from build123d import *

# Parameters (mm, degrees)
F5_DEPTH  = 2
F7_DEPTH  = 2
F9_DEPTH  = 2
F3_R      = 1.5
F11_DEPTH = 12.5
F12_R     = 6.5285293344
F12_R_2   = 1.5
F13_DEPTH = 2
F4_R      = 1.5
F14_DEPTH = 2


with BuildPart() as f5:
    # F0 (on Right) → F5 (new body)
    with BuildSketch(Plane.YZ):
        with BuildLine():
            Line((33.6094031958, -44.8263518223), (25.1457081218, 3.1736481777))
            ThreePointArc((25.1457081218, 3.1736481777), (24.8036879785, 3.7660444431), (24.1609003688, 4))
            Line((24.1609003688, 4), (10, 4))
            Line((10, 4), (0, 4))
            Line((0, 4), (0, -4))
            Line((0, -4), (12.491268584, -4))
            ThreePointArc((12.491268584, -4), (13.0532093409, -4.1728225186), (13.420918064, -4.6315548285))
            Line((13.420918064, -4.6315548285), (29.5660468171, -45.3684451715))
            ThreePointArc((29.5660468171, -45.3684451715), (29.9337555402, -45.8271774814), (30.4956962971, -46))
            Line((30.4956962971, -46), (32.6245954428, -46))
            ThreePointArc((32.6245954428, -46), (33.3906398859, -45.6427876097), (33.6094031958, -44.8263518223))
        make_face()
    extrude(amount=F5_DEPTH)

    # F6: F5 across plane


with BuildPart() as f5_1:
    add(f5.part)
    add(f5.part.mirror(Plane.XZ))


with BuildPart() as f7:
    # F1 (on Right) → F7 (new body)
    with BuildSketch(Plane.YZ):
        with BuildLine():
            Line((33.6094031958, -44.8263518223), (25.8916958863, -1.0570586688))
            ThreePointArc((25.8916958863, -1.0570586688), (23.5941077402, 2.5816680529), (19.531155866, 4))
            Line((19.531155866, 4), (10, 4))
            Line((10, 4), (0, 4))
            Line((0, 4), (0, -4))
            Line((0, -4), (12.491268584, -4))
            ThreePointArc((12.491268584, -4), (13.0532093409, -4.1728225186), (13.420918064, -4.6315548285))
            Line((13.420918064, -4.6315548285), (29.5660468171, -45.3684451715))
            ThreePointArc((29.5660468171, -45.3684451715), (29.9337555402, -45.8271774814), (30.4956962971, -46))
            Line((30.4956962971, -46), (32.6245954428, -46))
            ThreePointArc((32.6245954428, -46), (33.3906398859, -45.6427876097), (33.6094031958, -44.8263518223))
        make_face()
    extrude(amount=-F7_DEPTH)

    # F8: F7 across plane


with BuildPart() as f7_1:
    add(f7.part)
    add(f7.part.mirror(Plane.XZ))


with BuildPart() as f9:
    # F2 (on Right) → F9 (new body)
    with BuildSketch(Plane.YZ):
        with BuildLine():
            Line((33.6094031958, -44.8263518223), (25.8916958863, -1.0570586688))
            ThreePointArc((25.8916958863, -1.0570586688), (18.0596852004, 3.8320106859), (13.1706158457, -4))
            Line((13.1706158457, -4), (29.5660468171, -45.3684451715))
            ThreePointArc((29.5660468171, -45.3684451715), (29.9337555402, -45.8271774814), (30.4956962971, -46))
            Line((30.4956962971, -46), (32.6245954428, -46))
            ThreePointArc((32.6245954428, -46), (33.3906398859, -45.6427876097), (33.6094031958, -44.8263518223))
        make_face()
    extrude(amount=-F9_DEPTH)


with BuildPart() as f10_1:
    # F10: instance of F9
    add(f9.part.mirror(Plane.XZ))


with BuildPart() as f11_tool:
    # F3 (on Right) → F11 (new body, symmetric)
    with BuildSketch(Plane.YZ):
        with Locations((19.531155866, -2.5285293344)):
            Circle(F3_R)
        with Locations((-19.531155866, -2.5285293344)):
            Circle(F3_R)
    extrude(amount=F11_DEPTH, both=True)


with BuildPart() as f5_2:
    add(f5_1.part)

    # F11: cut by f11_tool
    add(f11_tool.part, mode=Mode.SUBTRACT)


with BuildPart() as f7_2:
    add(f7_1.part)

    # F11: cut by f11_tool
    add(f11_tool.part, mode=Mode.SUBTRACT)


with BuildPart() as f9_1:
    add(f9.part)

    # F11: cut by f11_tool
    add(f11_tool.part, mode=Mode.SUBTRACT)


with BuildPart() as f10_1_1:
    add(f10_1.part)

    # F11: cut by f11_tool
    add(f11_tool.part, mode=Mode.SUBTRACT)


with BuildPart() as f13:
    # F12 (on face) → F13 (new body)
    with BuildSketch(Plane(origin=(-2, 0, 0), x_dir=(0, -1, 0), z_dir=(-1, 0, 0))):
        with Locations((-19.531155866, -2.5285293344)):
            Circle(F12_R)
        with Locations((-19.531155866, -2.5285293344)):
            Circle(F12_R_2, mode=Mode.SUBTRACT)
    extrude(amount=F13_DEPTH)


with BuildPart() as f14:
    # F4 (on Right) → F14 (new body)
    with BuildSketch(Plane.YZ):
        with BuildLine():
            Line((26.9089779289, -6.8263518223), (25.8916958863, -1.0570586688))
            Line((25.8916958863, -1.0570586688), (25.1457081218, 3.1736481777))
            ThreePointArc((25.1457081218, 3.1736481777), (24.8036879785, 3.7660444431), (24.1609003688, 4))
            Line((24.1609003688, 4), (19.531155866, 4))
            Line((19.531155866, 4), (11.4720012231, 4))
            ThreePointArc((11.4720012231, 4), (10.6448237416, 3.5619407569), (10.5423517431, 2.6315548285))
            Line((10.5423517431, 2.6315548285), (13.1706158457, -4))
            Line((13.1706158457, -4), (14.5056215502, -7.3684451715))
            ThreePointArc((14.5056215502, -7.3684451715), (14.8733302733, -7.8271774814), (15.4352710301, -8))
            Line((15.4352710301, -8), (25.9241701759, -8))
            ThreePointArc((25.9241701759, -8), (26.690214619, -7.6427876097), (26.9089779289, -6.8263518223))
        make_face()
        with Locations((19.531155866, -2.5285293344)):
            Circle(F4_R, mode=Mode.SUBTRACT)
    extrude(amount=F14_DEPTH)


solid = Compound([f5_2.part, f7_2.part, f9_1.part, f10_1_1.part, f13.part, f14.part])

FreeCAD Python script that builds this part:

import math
import FreeCAD as App
import Part
import Sketcher
from FreeCAD import Vector
Q = App.Units.Quantity

doc = App.newDocument("Part")
body = doc.addObject("PartDesign::Body", "Body")

# Sketch on YZ plane
sketch1 = doc.addObject("Sketcher::SketchObject", "Sketch")
body.addObject(sketch1)
sketch1.AttachmentSupport = (doc.YZ_Plane, [""])
sketch1.MapMode = "FlatFace"
sketch1.addGeometry([
    Part.LineSegment(Vector(33.6, -44.8, 0), Vector(25.1, 3.2, 0)),  # 0
    Part.ArcOfCircle(Part.Circle(Vector(24.2, 3, 0), Vector(0, 0, 1), 1), math.radians(10), math.radians(90)),  # 1
    Part.LineSegment(Vector(24.2, 4, 0), Vector(0, 4, 0)),  # 2
    Part.LineSegment(Vector(0, 4, 0), Vector(0, -4, 0)),  # 3
    Part.LineSegment(Vector(0, -4, 0), Vector(12.5, -4, 0)),  # 4
    Part.ArcOfCircle(Part.Circle(Vector(12.5, -5, 0), Vector(0, 0, 1), 1), math.radians(22), math.radians(90)),  # 5
    Part.LineSegment(Vector(13.4, -4.6, 0), Vector(29.6, -45.4, 0)),  # 6
    Part.ArcOfCircle(Part.Circle(Vector(30.5, -45, 0), Vector(0, 0, 1), 1), math.radians(-158), math.radians(-90)),  # 7
    Part.LineSegment(Vector(30.5, -46, 0), Vector(32.6, -46, 0)),  # 8
    Part.ArcOfCircle(Part.Circle(Vector(32.6, -45, 0), Vector(0, 0, 1), 1), math.radians(-90), math.radians(10)),  # 9
], False)
sketch1.addConstraint([
    Sketcher.Constraint("Tangent", 0, 2, 1, 1),
    Sketcher.Constraint("Tangent", 1, 2, 2, 1),
    Sketcher.Constraint("Coincident", 2, 2, 3, 1),
    Sketcher.Constraint("Coincident", 3, 2, 4, 1),
    Sketcher.Constraint("Tangent", 4, 2, 5, 2),
    Sketcher.Constraint("Tangent", 5, 1, 6, 1),
    Sketcher.Constraint("Tangent", 6, 2, 7, 1),
    Sketcher.Constraint("Tangent", 7, 2, 8, 1),
    Sketcher.Constraint("Tangent", 8, 2, 9, 1),
    Sketcher.Constraint("Tangent", 9, 2, 0, 1),
    Sketcher.Constraint("Horizontal", 2),
    Sketcher.Constraint("Vertical", 3),
    Sketcher.Constraint("Horizontal", 4),
    Sketcher.Constraint("Horizontal", 8),
    Sketcher.Constraint("Equal", 1, 5),
    Sketcher.Constraint("Equal", 5, 7),
    Sketcher.Constraint("Equal", 7, 9),
    Sketcher.Constraint("Symmetric", 2, 2, 3, 2, -1, 1),
    Sketcher.Constraint("Radius", 1, 1.0),
    Sketcher.Constraint("DistanceY", 3, 2, 3, 1, 8.0),
    Sketcher.Constraint("Angle", 0, Q("100 deg")),
    Sketcher.Constraint("DistanceY", 7, 3, -1, 1, 45.0),
    Sketcher.Constraint("DistanceX", 2, 2, 2, 1, 24.1609),
    Sketcher.Constraint("DistanceX", 8, 1, 8, 2, 2.128899),
    Sketcher.Constraint("DistanceX", 4, 1, 4, 2, 12.491269),
])
pad1 = doc.addObject("PartDesign::Pad", "Pad")
body.addObject(pad1)
pad1.Profile = sketch1
pad1.Length = 2
body2 = doc.addObject("PartDesign::Body", "Body001")
doc.recompute()

body2.BaseFeature = body
doc.recompute()

mirroring = doc.addObject("Part::Mirroring", "Mirroring")
mirroring.Source = body
mirroring.Base = Vector(0, 0, 0)
mirroring.Normal = Vector(0, -1, 0)
body3 = doc.addObject("PartDesign::Body", "Body002")
body3.BaseFeature = mirroring
boolean = doc.addObject("PartDesign::Boolean", "Boolean")
body2.addObject(boolean)
boolean.Type = "Fuse"
boolean.addObjects([body3])
doc.recompute()
body4 = doc.addObject("PartDesign::Body", "Body003")

# Sketch on YZ plane
sketch2 = doc.addObject("Sketcher::SketchObject", "Sketch001")
body4.addObject(sketch2)
sketch2.AttachmentSupport = (doc.getObject("YZ_Plane003"), [""])
sketch2.MapMode = "FlatFace"
sketch2.addGeometry([
    Part.LineSegment(Vector(33.6, -44.8, 0), Vector(25.9, -1.1, 0)),  # 0
    Part.ArcOfCircle(Part.Circle(Vector(19.5, -2.5, 0), Vector(0, 0, 1), 6.5), math.radians(13), math.radians(90)),  # 1
    Part.LineSegment(Vector(19.5, 4, 0), Vector(0, 4, 0)),  # 2
    Part.LineSegment(Vector(0, 4, 0), Vector(0, -4, 0)),  # 3
    Part.LineSegment(Vector(0, -4, 0), Vector(12.5, -4, 0)),  # 4
    Part.ArcOfCircle(Part.Circle(Vector(12.5, -5, 0), Vector(0, 0, 1), 1), math.radians(22), math.radians(90)),  # 5
    Part.LineSegment(Vector(13.4, -4.6, 0), Vector(29.6, -45.4, 0)),  # 6
    Part.ArcOfCircle(Part.Circle(Vector(30.5, -45, 0), Vector(0, 0, 1), 1), math.radians(-158), math.radians(-90)),  # 7
    Part.LineSegment(Vector(30.5, -46, 0), Vector(32.6, -46, 0)),  # 8
    Part.ArcOfCircle(Part.Circle(Vector(32.6, -45, 0), Vector(0, 0, 1), 1), math.radians(-90), math.radians(10)),  # 9
], False)
sketch2.addConstraint([
    Sketcher.Constraint("Coincident", 0, 2, 1, 1),
    Sketcher.Constraint("Tangent", 1, 2, 2, 1),
    Sketcher.Constraint("Coincident", 2, 2, 3, 1),
    Sketcher.Constraint("Coincident", 3, 2, 4, 1),
    Sketcher.Constraint("Tangent", 4, 2, 5, 2),
    Sketcher.Constraint("Tangent", 5, 1, 6, 1),
    Sketcher.Constraint("Tangent", 6, 2, 7, 1),
    Sketcher.Constraint("Tangent", 7, 2, 8, 1),
    Sketcher.Constraint("Tangent", 8, 2, 9, 1),
    Sketcher.Constraint("Tangent", 9, 2, 0, 1),
    Sketcher.Constraint("Horizontal", 2),
    Sketcher.Constraint("Vertical", 3),
    Sketcher.Constraint("Horizontal", 4),
    Sketcher.Constraint("Horizontal", 8),
    Sketcher.Constraint("Equal", 5, 7),
    Sketcher.Constraint("Equal", 7, 9),
    Sketcher.Constraint("Symmetric", 2, 2, 3, 2, -1, 1),
    Sketcher.Constraint("Radius", 5, 1.0),
    Sketcher.Constraint("DistanceY", 3, 2, 3, 1, 8.0),
    Sketcher.Constraint("Angle", 0, Q("100 deg")),
    Sketcher.Constraint("DistanceY", 7, 3, -1, 1, 45.0),
    Sketcher.Constraint("Radius", 1, 6.528529),
    Sketcher.Constraint("DistanceX", 8, 1, 8, 2, 2.128899),
    Sketcher.Constraint("DistanceX", 0, 2, 7, 3, 4.604),
    Sketcher.Constraint("DistanceX", 4, 1, 4, 2, 12.491269),
    Sketcher.Constraint("DistanceX", 2, 2, 2, 1, 19.531156),
])
pad2 = doc.addObject("PartDesign::Pad", "Pad001")
body4.addObject(pad2)
pad2.Profile = sketch2
pad2.Length = 2
pad2.Reversed = True
body5 = doc.addObject("PartDesign::Body", "Body004")
doc.recompute()

body5.BaseFeature = body4
doc.recompute()

mirroring2 = doc.addObject("Part::Mirroring", "Mirroring001")
mirroring2.Source = body4
mirroring2.Base = Vector(0, 0, 0)
mirroring2.Normal = Vector(0, -1, 0)
body6 = doc.addObject("PartDesign::Body", "Body005")
body6.BaseFeature = mirroring2
boolean2 = doc.addObject("PartDesign::Boolean", "Boolean001")
body5.addObject(boolean2)
boolean2.Type = "Fuse"
boolean2.addObjects([body6])
doc.recompute()
body7 = doc.addObject("PartDesign::Body", "Body006")

# Sketch on YZ plane
sketch3 = doc.addObject("Sketcher::SketchObject", "Sketch002")
body7.addObject(sketch3)
sketch3.AttachmentSupport = (doc.getObject("YZ_Plane006"), [""])
sketch3.MapMode = "FlatFace"
sketch3.addGeometry([
    Part.LineSegment(Vector(33.6, -44.8, 0), Vector(25.9, -1.1, 0)),  # 0
    Part.ArcOfCircle(Part.Circle(Vector(19.5, -2.5, 0), Vector(0, 0, 1), 6.5), math.radians(13), math.radians(193)),  # 1
    Part.LineSegment(Vector(13.2, -4, 0), Vector(29.6, -45.4, 0)),  # 2
    Part.ArcOfCircle(Part.Circle(Vector(30.5, -45, 0), Vector(0, 0, 1), 1), math.radians(-158), math.radians(-90)),  # 3
    Part.LineSegment(Vector(30.5, -46, 0), Vector(32.6, -46, 0)),  # 4
    Part.ArcOfCircle(Part.Circle(Vector(32.6, -45, 0), Vector(0, 0, 1), 1), math.radians(-90), math.radians(10)),  # 5
], False)
sketch3.addConstraint([
    Sketcher.Constraint("Coincident", 0, 2, 1, 1),
    Sketcher.Constraint("Coincident", 1, 2, 2, 1),
    Sketcher.Constraint("Tangent", 2, 2, 3, 1),
    Sketcher.Constraint("Tangent", 3, 2, 4, 1),
    Sketcher.Constraint("Tangent", 4, 2, 5, 1),
    Sketcher.Constraint("Tangent", 5, 2, 0, 1),
    Sketcher.Constraint("Horizontal", 4),
    Sketcher.Constraint("Equal", 3, 5),
    Sketcher.Constraint("Radius", 3, 1.0),
    Sketcher.Constraint("Angle", 0, Q("100 deg")),
    Sketcher.Constraint("DistanceY", 3, 3, -1, 1, 45.0),
    Sketcher.Constraint("DistanceY", 1, 2, -1, 1, 4.0),
    Sketcher.Constraint("Radius", 1, 6.528529),
    Sketcher.Constraint("DistanceX", 4, 1, 4, 2, 2.128899),
    Sketcher.Constraint("DistanceX", 0, 2, 3, 3, 4.604),
    Sketcher.Constraint("DistanceY", 1, 3, -1, 1, 2.528529),
    Sketcher.Constraint("DistanceX", -1, 1, 1, 3, 19.531156),
])
pad3 = doc.addObject("PartDesign::Pad", "Pad002")
body7.addObject(pad3)
pad3.Profile = sketch3
pad3.Length = 2
pad3.Reversed = True
body8 = doc.addObject("PartDesign::Body", "Body007")
doc.recompute()

mirroring3 = doc.addObject("Part::Mirroring", "Mirroring002")
mirroring3.Source = body7
mirroring3.Base = Vector(0, 0, 0)
mirroring3.Normal = Vector(0, -1, 0)
body8.BaseFeature = mirroring3
doc.recompute()
body9 = doc.addObject("PartDesign::Body", "Body008")
body9.AllowCompound = True

# Sketch on YZ plane
sketch4 = doc.addObject("Sketcher::SketchObject", "Sketch003")
body9.addObject(sketch4)
sketch4.AttachmentSupport = (doc.getObject("YZ_Plane008"), [""])
sketch4.MapMode = "FlatFace"
sketch4.addGeometry([
    Part.Circle(Vector(19.5, -2.5, 0), Vector(0, 0, 1), 1.5),
    Part.Circle(Vector(-19.5, -2.5, 0), Vector(0, 0, 1), 1.5),
], False)
sketch4.addConstraint([
    Sketcher.Constraint("Equal", 0, 1),
    Sketcher.Constraint("Symmetric", 0, 3, 1, 3, -2),
    Sketcher.Constraint("Diameter", 0, 3.0),
    Sketcher.Constraint("DistanceY", 0, 3, -1, 1, 2.528529),
    Sketcher.Constraint("DistanceX", 1, 3, 0, 3, 39.062312),
])
pad4 = doc.addObject("PartDesign::Pad", "Pad003")
body9.addObject(pad4)
pad4.Profile = sketch4
pad4.Length = 25
pad4.Midplane = True
doc.recompute()

body10 = doc.addObject("PartDesign::Body", "Body009")
body10.BaseFeature = body9
boolean3 = doc.addObject("PartDesign::Boolean", "Boolean002")
body2.addObject(boolean3)
boolean3.Type = "Cut"
boolean3.addObjects([body10])
doc.recompute()

body11 = doc.addObject("PartDesign::Body", "Body010")
body11.BaseFeature = body9
boolean4 = doc.addObject("PartDesign::Boolean", "Boolean003")
body5.addObject(boolean4)
boolean4.Type = "Cut"
boolean4.addObjects([body11])
doc.recompute()

body12 = doc.addObject("PartDesign::Body", "Body011")
body12.BaseFeature = body9
boolean5 = doc.addObject("PartDesign::Boolean", "Boolean004")
body7.addObject(boolean5)
boolean5.Type = "Cut"
boolean5.addObjects([body12])
doc.recompute()

boolean6 = doc.addObject("PartDesign::Boolean", "Boolean005")
body8.addObject(boolean6)
boolean6.Type = "Cut"
boolean6.addObjects([body9])
body13 = doc.addObject("PartDesign::Body", "Body012")

# Sketch on YZ plane
sketch5 = doc.addObject("Sketcher::SketchObject", "Sketch004")
body13.addObject(sketch5)
sketch5.AttachmentSupport = (doc.getObject("YZ_Plane012"), [""])
sketch5.MapMode = "FlatFace"
sketch5.AttachmentOffset = App.Placement(Vector(0, 0, -2), App.Rotation())
sketch5.addGeometry([
    Part.Circle(Vector(19.5, -2.5, 0), Vector(0, 0, 1), 6.5),
    Part.Circle(Vector(19.5, -2.5, 0), Vector(0, 0, 1), 1.5),
], False)
sketch5.addConstraint([
    Sketcher.Constraint("Coincident", 1, 3, 0, 3),
    Sketcher.Constraint("Diameter", 1, 3.0),
    Sketcher.Constraint("Diameter", 0, 13.057059),
    Sketcher.Constraint("DistanceY", 0, 3, -1, 1, 2.528529),
    Sketcher.Constraint("DistanceX", -1, 1, 0, 3, 19.531156),
])
pad5 = doc.addObject("PartDesign::Pad", "Pad004")
body13.addObject(pad5)
pad5.Profile = sketch5
pad5.Length = 2
pad5.Reversed = True
body14 = doc.addObject("PartDesign::Body", "Body013")

# Sketch on YZ plane
sketch6 = doc.addObject("Sketcher::SketchObject", "Sketch005")
body14.addObject(sketch6)
sketch6.AttachmentSupport = (doc.getObject("YZ_Plane013"), [""])
sketch6.MapMode = "FlatFace"
sketch6.addGeometry([
    Part.LineSegment(Vector(26.9, -6.8, 0), Vector(25.9, -1.1, 0)),  # 0
    Part.LineSegment(Vector(25.9, -1.1, 0), Vector(25.1, 3.2, 0)),  # 1
    Part.ArcOfCircle(Part.Circle(Vector(24.2, 3, 0), Vector(0, 0, 1), 1), math.radians(10), math.radians(90)),  # 2
    Part.LineSegment(Vector(24.2, 4, 0), Vector(11.5, 4, 0)),  # 3
    Part.ArcOfCircle(Part.Circle(Vector(11.5, 3, 0), Vector(0, 0, 1), 1), math.radians(90), math.radians(202)),  # 4
    Part.LineSegment(Vector(10.5, 2.6, 0), Vector(13.2, -4, 0)),  # 5
    Part.LineSegment(Vector(13.2, -4, 0), Vector(14.5, -7.4, 0)),  # 6
    Part.ArcOfCircle(Part.Circle(Vector(15.4, -7, 0), Vector(0, 0, 1), 1), math.radians(-158), math.radians(-90)),  # 7
    Part.LineSegment(Vector(15.4, -8, 0), Vector(25.9, -8, 0)),  # 8
    Part.ArcOfCircle(Part.Circle(Vector(25.9, -7, 0), Vector(0, 0, 1), 1), math.radians(-90), math.radians(10)),  # 9
    Part.Circle(Vector(19.5, -2.5, 0), Vector(0, 0, 1), 1.5),  # 10
], False)
sketch6.addConstraint([
    Sketcher.Constraint("Coincident", 0, 2, 1, 1),
    Sketcher.Constraint("Tangent", 1, 2, 2, 1),
    Sketcher.Constraint("Tangent", 2, 2, 3, 1),
    Sketcher.Constraint("Tangent", 3, 2, 4, 1),
    Sketcher.Constraint("Tangent", 4, 2, 5, 1),
    Sketcher.Constraint("Coincident", 5, 2, 6, 1),
    Sketcher.Constraint("Tangent", 6, 2, 7, 1),
    Sketcher.Constraint("Tangent", 7, 2, 8, 1),
    Sketcher.Constraint("Tangent", 8, 2, 9, 1),
    Sketcher.Constraint("Tangent", 9, 2, 0, 1),
    Sketcher.Constraint("Horizontal", 3),
    Sketcher.Constraint("Horizontal", 8),
    Sketcher.Constraint("Equal", 2, 4),
    Sketcher.Constraint("Equal", 4, 7),
    Sketcher.Constraint("Equal", 7, 9),
    Sketcher.Constraint("Parallel", 0, 1),
    Sketcher.Constraint("Parallel", 5, 6),
    Sketcher.Constraint("Diameter", 10, 3.0),
    Sketcher.Constraint("Radius", 2, 1.0),
    Sketcher.Constraint("Angle", 0, Q("100 deg")),
    Sketcher.Constraint("DistanceY", -1, 1, 2, 3, 3.0),
    Sketcher.Constraint("DistanceY", 7, 3, -1, 1, 7.0),
    Sketcher.Constraint("DistanceY", 5, 2, -1, 1, 4.0),
    Sketcher.Constraint("DistanceX", 3, 2, 3, 1, 12.688899),
    Sketcher.Constraint("DistanceX", 8, 1, 8, 2, 10.488899),
    Sketcher.Constraint("DistanceX", -1, 1, 4, 3, 11.472001),
    Sketcher.Constraint("DistanceY", 10, 3, -1, 1, 2.528529),
    Sketcher.Constraint("DistanceY", 0, 2, -1, 1, 1.057059),
    Sketcher.Constraint("DistanceX", 10, 3, 0, 2, 6.36054),
])
pad6 = doc.addObject("PartDesign::Pad", "Pad005")
body14.addObject(pad6)
pad6.Profile = sketch6
pad6.Length = 2
mirroring.Visibility = False
mirroring2.Visibility = False
mirroring3.Visibility = False

doc.recompute()
